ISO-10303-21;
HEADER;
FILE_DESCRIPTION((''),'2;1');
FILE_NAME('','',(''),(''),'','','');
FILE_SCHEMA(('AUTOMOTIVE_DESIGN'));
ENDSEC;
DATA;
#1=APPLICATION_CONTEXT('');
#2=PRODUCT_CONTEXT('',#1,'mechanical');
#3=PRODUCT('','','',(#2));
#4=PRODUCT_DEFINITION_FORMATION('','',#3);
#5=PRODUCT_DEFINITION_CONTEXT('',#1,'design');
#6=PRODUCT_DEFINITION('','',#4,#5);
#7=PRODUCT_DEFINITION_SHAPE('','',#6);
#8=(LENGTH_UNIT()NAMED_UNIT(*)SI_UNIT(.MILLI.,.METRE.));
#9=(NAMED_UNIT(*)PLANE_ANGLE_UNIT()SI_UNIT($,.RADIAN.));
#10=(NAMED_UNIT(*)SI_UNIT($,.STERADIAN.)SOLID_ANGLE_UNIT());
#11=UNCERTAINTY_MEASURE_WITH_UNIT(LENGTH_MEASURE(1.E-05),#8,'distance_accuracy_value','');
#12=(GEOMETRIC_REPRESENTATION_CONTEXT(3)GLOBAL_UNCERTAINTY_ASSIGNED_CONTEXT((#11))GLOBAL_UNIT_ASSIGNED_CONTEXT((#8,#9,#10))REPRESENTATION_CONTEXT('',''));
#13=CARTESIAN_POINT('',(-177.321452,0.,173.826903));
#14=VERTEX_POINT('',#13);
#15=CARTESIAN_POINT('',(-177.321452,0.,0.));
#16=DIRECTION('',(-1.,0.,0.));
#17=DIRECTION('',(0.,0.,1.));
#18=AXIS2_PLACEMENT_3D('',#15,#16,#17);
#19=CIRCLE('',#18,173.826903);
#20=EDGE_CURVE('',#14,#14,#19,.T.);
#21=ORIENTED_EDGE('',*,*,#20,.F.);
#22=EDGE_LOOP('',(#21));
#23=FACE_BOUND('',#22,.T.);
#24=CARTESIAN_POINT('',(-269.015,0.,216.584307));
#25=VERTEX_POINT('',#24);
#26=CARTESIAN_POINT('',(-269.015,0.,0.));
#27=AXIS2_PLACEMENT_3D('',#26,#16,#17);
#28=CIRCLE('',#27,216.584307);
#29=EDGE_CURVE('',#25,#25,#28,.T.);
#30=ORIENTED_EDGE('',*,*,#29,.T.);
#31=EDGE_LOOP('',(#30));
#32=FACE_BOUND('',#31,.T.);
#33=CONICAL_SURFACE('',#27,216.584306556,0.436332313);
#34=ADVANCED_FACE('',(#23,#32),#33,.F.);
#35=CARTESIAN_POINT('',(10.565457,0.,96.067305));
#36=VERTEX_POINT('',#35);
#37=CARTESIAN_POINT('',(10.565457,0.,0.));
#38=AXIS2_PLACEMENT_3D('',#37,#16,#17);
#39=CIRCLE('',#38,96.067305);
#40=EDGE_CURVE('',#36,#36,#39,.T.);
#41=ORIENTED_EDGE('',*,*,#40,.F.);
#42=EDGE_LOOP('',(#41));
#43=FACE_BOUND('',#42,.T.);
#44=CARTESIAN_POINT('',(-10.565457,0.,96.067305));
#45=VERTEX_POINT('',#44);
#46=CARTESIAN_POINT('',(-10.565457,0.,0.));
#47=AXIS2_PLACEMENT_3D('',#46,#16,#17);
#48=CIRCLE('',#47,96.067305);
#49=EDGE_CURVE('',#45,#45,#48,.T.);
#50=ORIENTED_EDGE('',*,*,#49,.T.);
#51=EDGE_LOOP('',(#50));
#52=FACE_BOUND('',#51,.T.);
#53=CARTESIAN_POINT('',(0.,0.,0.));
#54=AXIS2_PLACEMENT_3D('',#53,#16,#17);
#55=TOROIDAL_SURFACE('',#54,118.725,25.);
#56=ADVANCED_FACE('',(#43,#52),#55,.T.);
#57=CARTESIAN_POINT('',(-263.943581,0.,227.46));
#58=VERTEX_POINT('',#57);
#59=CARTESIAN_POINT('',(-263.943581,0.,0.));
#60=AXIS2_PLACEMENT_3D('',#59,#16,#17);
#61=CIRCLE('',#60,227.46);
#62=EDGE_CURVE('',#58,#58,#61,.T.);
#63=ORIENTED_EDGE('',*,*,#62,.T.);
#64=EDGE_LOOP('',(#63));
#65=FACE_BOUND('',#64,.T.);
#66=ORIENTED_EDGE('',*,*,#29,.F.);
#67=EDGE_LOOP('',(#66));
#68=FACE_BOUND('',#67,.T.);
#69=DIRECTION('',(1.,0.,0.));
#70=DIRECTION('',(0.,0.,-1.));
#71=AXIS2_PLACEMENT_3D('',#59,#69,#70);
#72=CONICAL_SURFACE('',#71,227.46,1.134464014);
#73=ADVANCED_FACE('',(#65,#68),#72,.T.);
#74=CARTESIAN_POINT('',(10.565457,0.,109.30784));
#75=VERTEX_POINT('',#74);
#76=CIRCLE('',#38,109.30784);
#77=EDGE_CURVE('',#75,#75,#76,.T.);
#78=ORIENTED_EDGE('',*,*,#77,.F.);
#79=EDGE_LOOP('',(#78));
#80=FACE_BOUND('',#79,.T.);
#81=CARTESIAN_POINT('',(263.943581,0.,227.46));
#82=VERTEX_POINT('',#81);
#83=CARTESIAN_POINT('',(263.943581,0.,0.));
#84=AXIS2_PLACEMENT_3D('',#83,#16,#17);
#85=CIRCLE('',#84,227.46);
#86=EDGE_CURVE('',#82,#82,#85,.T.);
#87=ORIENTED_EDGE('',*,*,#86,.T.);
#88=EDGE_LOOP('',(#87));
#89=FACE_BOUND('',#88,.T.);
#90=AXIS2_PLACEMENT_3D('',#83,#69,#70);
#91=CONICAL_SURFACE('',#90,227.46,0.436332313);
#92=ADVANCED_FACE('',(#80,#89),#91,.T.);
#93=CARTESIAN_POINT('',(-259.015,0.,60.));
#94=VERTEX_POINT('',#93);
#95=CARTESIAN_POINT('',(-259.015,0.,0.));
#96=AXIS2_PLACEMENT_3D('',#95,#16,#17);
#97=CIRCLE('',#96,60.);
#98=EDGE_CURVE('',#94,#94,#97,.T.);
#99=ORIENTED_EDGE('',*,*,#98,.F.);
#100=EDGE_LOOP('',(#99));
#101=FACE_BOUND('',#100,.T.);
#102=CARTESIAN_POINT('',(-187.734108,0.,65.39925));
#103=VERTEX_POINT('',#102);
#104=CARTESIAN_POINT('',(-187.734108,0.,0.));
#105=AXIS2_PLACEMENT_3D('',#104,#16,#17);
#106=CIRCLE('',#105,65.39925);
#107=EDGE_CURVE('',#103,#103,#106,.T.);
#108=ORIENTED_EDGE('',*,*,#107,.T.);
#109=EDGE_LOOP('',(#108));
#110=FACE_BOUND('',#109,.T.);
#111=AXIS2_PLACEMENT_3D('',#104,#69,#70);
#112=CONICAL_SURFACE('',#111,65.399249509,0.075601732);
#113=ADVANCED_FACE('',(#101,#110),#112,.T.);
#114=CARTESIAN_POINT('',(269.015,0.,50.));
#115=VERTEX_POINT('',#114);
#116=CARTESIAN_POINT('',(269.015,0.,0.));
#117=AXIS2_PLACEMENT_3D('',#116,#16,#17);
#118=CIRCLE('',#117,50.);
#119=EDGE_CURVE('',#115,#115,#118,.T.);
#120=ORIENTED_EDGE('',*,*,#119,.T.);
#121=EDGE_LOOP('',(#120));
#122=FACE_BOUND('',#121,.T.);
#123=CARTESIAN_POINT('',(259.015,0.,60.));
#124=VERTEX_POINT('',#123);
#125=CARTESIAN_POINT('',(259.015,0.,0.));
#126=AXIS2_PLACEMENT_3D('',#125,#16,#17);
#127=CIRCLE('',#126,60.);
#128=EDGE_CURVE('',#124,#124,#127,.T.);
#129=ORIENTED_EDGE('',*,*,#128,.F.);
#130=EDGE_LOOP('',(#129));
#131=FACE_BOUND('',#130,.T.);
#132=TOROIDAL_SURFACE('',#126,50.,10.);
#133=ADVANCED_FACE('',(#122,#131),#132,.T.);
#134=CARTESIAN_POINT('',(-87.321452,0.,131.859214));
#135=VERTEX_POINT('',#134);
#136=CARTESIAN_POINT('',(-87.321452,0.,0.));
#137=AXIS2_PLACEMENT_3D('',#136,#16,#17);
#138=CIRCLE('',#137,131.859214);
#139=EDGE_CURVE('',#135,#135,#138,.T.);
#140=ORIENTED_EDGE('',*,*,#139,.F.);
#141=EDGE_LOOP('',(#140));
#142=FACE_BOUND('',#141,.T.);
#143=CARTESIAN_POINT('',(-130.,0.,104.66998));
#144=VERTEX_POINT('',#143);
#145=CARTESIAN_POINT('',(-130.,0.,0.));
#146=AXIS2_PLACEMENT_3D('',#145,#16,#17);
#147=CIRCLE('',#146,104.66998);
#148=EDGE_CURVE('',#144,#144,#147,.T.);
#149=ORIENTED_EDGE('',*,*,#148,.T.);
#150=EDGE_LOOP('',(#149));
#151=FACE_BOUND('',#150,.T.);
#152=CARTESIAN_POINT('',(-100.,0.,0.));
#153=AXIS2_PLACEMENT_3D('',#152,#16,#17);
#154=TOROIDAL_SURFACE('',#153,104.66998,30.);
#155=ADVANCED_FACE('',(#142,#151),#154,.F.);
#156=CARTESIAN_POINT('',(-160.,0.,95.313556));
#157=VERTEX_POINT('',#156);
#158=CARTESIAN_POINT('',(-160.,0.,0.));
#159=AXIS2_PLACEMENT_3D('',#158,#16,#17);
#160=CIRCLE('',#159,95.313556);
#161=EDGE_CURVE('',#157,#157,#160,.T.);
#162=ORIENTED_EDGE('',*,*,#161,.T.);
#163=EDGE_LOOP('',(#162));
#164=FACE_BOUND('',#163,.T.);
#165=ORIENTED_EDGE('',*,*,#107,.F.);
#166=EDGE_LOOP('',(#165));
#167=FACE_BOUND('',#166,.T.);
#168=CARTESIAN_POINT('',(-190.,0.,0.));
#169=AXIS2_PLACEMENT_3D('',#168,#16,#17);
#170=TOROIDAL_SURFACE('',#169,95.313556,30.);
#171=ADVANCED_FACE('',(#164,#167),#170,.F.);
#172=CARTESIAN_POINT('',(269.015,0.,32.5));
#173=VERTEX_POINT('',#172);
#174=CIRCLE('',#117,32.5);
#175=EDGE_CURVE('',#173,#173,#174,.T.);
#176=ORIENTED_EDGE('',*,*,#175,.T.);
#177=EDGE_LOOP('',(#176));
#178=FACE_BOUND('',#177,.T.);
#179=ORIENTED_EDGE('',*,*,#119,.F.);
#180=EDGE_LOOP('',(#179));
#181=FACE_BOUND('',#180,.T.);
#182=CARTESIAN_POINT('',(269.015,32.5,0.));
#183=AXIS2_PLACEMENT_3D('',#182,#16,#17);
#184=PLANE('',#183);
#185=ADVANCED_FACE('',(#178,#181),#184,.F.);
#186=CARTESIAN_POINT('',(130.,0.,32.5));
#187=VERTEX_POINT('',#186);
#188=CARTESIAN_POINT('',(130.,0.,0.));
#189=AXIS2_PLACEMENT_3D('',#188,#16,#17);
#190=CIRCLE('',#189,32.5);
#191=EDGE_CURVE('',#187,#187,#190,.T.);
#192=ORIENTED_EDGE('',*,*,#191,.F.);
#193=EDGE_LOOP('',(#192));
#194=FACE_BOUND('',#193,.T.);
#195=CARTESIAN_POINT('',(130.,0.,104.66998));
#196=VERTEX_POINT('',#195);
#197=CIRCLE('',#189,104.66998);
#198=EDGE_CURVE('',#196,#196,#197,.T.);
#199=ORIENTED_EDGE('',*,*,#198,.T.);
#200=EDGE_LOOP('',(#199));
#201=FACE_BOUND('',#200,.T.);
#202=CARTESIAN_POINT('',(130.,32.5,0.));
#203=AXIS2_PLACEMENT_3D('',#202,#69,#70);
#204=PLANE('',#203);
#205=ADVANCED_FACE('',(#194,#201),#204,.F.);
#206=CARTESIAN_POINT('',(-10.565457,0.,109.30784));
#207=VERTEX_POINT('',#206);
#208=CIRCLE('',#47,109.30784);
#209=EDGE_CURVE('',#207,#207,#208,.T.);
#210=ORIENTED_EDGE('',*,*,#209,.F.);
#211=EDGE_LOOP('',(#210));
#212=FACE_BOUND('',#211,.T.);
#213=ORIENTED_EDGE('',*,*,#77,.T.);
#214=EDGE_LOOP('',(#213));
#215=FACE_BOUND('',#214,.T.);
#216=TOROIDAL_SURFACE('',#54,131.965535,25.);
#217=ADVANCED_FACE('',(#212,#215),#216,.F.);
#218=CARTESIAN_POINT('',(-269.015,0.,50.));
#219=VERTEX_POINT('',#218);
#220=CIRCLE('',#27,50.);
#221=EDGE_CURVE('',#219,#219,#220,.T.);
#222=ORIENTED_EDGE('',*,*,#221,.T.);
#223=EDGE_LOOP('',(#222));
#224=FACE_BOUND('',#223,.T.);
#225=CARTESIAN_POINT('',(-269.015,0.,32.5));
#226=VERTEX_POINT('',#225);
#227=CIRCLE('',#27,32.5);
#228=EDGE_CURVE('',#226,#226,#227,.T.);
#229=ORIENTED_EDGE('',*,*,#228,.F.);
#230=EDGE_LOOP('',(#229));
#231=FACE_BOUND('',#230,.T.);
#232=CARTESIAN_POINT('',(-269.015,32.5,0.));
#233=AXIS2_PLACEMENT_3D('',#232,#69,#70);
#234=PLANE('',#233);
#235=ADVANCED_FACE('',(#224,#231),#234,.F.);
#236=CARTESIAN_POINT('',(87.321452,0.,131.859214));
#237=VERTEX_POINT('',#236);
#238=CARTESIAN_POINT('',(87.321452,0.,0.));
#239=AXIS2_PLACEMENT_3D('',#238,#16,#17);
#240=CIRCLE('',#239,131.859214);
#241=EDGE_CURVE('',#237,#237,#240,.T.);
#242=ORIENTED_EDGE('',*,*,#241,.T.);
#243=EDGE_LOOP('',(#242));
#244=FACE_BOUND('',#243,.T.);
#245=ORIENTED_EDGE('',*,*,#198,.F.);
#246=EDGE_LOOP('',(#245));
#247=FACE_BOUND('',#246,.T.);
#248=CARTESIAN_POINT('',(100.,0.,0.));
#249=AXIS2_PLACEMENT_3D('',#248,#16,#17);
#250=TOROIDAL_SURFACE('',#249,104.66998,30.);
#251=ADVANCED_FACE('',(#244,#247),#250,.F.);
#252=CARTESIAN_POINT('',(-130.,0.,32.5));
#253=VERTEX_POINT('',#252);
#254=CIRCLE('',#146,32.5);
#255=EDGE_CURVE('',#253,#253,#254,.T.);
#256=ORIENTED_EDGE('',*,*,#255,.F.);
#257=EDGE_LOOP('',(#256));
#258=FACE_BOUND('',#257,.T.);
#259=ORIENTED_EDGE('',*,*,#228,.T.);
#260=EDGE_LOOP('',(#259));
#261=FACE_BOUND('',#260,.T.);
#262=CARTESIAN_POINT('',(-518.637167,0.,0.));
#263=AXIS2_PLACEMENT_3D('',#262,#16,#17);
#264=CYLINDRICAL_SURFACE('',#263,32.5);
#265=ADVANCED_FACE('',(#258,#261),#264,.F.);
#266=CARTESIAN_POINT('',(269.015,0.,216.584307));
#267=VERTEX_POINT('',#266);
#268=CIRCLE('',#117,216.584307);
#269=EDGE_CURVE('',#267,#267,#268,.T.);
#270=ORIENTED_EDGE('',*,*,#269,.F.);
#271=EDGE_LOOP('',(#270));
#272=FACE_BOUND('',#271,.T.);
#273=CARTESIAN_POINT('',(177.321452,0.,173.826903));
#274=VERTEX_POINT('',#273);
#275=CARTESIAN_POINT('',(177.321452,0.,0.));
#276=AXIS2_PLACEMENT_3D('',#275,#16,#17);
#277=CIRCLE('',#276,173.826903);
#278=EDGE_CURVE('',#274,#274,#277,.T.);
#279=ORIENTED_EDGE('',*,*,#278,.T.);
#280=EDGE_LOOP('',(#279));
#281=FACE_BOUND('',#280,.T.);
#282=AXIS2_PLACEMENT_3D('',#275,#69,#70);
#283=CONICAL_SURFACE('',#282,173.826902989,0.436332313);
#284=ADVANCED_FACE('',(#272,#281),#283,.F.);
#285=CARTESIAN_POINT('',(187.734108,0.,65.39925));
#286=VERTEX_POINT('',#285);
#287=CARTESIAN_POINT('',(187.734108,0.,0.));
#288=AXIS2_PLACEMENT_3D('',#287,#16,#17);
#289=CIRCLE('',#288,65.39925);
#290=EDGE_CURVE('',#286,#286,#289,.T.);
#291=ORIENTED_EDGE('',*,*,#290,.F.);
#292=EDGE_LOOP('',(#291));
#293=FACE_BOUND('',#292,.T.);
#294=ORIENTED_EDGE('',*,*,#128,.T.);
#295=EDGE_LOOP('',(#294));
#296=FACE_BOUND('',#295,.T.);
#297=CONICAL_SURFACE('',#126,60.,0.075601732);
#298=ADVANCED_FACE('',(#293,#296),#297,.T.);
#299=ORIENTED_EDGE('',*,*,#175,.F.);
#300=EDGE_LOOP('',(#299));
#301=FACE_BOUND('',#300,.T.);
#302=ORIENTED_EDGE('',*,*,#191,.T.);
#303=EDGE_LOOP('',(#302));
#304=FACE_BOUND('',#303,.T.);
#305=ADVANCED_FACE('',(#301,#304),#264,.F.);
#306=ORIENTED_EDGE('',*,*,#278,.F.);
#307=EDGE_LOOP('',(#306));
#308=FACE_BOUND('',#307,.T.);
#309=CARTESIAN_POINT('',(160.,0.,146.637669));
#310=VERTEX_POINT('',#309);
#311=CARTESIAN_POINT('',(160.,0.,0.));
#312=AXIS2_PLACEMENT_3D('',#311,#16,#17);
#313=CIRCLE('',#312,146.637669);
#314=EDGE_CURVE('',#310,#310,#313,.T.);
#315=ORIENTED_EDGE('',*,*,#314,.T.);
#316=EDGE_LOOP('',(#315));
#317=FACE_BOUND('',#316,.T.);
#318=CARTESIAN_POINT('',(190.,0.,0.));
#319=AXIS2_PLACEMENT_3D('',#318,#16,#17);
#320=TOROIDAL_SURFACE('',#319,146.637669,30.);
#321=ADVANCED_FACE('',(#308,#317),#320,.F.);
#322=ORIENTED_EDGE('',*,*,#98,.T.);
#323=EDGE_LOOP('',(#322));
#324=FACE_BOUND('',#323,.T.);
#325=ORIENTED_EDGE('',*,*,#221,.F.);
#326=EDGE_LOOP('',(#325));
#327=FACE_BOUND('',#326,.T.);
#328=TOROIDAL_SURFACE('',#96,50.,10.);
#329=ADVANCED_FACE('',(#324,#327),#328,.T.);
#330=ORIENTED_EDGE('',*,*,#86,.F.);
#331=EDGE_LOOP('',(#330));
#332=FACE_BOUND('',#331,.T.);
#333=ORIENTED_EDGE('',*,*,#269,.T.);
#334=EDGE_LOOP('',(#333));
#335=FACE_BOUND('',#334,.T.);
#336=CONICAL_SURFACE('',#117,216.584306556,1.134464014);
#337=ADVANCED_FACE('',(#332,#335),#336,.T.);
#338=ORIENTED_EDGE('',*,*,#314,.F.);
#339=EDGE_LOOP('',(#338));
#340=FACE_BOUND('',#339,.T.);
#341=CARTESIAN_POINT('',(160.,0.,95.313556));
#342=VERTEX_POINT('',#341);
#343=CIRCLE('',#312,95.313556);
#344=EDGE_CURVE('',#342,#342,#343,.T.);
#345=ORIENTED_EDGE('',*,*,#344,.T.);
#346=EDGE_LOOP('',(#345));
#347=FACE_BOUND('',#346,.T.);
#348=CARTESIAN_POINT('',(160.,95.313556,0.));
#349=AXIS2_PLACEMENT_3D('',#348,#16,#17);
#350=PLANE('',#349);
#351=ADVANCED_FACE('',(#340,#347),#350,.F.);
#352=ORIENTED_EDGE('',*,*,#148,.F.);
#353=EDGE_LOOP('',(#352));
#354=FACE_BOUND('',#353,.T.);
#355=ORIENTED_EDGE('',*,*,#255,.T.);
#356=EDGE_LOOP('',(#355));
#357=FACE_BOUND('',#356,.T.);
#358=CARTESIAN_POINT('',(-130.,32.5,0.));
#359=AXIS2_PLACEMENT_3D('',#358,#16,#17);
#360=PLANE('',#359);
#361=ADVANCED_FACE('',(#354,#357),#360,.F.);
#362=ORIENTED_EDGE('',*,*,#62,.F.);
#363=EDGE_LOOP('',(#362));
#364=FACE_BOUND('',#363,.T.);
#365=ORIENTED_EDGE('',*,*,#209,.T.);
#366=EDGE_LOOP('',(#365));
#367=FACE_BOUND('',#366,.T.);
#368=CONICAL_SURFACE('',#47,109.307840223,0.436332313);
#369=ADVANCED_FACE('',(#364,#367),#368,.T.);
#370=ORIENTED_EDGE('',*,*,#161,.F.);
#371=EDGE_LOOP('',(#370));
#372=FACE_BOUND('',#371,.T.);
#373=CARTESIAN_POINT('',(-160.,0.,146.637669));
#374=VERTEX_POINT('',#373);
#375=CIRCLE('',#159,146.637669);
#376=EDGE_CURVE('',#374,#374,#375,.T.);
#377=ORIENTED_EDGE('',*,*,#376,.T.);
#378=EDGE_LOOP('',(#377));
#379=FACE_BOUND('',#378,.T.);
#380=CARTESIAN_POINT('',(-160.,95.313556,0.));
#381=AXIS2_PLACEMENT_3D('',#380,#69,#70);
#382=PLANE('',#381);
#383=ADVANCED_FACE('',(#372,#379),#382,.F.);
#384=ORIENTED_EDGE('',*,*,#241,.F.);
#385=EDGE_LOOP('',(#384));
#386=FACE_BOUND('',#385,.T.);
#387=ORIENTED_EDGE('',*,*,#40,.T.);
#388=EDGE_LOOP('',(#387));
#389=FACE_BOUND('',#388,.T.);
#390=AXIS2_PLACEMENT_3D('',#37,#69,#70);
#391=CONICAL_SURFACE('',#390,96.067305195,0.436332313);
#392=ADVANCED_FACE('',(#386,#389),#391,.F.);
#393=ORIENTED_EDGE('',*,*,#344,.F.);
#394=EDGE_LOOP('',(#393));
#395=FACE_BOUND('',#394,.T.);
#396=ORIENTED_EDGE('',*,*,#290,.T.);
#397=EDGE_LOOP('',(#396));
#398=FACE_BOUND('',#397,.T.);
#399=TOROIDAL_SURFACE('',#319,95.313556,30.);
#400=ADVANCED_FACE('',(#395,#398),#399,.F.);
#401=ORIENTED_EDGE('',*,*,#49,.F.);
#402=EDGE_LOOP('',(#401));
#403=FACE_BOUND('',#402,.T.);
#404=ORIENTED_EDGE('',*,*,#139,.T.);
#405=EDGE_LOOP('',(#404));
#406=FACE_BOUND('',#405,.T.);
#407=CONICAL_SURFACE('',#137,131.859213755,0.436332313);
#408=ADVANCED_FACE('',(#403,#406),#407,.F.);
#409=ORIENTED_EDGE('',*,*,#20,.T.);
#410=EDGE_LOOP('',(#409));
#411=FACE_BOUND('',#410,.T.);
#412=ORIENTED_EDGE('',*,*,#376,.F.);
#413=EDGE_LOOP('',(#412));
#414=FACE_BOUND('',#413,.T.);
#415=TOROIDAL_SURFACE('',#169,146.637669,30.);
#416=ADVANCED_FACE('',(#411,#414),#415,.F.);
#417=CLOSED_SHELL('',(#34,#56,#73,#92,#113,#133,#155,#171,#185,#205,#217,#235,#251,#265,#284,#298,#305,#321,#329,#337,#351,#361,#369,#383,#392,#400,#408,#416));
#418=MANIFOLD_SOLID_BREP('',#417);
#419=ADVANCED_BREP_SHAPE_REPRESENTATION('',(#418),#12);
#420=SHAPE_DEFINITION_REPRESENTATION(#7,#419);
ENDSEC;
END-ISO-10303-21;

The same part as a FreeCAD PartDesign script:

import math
import FreeCAD as App
import Part
import Sketcher
from FreeCAD import Vector
Q = App.Units.Quantity

doc = App.newDocument("Part")
body = doc.addObject("PartDesign::Body", "Body")

# Sketch on XY plane
sketch1 = body.newObject("Sketcher::SketchObject", "Sketch")
sketch1.AttachmentSupport = (doc.getObject("XY_Plane"), [""])
sketch1.MapMode = "FlatFace"
sketch1.addGeometry([
    Part.LineSegment(Vector(130, 32, 0), Vector(269, 32, 0)),  # 0
    Part.LineSegment(Vector(269, 32, 0), Vector(269, 50, 0)),  # 1
    Part.ArcOfCircle(Part.Circle(Vector(259, 50, 0), Vector(0, 0, 1), 10), math.radians(0), math.radians(90)),  # 2
    Part.LineSegment(Vector(259, 60, 0), Vector(188, 65, 0)),  # 3
    Part.ArcOfCircle(Part.Circle(Vector(190, 95, 0), Vector(0, 0, 1), 30), math.radians(180), math.radians(266)),  # 4
    Part.LineSegment(Vector(160, 95, 0), Vector(160, 147, 0)),  # 5
    Part.ArcOfCircle(Part.Circle(Vector(190, 147, 0), Vector(0, 0, 1), 30), math.radians(115), math.radians(180)),  # 6
    Part.LineSegment(Vector(177, 174, 0), Vector(269, 217, 0)),  # 7
    Part.LineSegment(Vector(269, 217, 0), Vector(264, 227, 0)),  # 8
    Part.LineSegment(Vector(264, 227, 0), Vector(11, 109, 0)),  # 9
    Part.ArcOfCircle(Part.Circle(Vector(0, 132, 0), Vector(0, 0, 1), 25), math.radians(-115), math.radians(-65)),  # 10
    Part.LineSegment(Vector(-11, 109, 0), Vector(-264, 227, 0)),  # 11
    Part.LineSegment(Vector(-264, 227, 0), Vector(-269, 217, 0)),  # 12
    Part.LineSegment(Vector(-269, 217, 0), Vector(-177, 174, 0)),  # 13
    Part.ArcOfCircle(Part.Circle(Vector(-190, 147, 0), Vector(0, 0, 1), 30), math.radians(0), math.radians(65)),  # 14
    Part.LineSegment(Vector(-160, 147, 0), Vector(-160, 95, 0)),  # 15
    Part.ArcOfCircle(Part.Circle(Vector(-190, 95, 0), Vector(0, 0, 1), 30), math.radians(-86), math.radians(0)),  # 16
    Part.LineSegment(Vector(-188, 65, 0), Vector(-259, 60, 0)),  # 17
    Part.ArcOfCircle(Part.Circle(Vector(-259, 50, 0), Vector(0, 0, 1), 10), math.radians(90), math.radians(180)),  # 18
    Part.LineSegment(Vector(-269, 50, 0), Vector(-269, 32, 0)),  # 19
    Part.LineSegment(Vector(-269, 32, 0), Vector(-130, 32, 0)),  # 20
    Part.LineSegment(Vector(-130, 32, 0), Vector(-130, 105, 0)),  # 21
    Part.ArcOfCircle(Part.Circle(Vector(-100, 105, 0), Vector(0, 0, 1), 30), math.radians(65), math.radians(180)),  # 22
    Part.LineSegment(Vector(-87, 132, 0), Vector(-11, 96, 0)),  # 23
    Part.ArcOfCircle(Part.Circle(Vector(0, 119, 0), Vector(0, 0, 1), 25), math.radians(-115), math.radians(-65)),  # 24
    Part.LineSegment(Vector(11, 96, 0), Vector(87, 132, 0)),  # 25
    Part.ArcOfCircle(Part.Circle(Vector(100, 105, 0), Vector(0, 0, 1), 30), math.radians(0), math.radians(115)),  # 26
    Part.LineSegment(Vector(130, 105, 0), Vector(130, 32, 0)),  # 27
], False)
sketch1.addConstraint([
    Sketcher.Constraint("Coincident", 0, 2, 1, 1),
    Sketcher.Constraint("Tangent", 1, 2, 2, 1),
    Sketcher.Constraint("Coincident", 2, 2, 3, 1),
    Sketcher.Constraint("Tangent", 3, 2, 4, 2),
    Sketcher.Constraint("Tangent", 4, 1, 5, 1),
    Sketcher.Constraint("Tangent", 5, 2, 6, 2),
    Sketcher.Constraint("Tangent", 6, 1, 7, 1),
    Sketcher.Constraint("Coincident", 7, 2, 8, 1),
    Sketcher.Constraint("Coincident", 8, 2, 9, 1),
    Sketcher.Constraint("Tangent", 9, 2, 10, 2),
    Sketcher.Constraint("Tangent", 10, 1, 11, 1),
    Sketcher.Constraint("Coincident", 11, 2, 12, 1),
    Sketcher.Constraint("Coincident", 12, 2, 13, 1),
    Sketcher.Constraint("Tangent", 13, 2, 14, 2),
    Sketcher.Constraint("Tangent", 14, 1, 15, 1),
    Sketcher.Constraint("Tangent", 15, 2, 16, 2),
    Sketcher.Constraint("Tangent", 16, 1, 17, 1),
    Sketcher.Constraint("Coincident", 17, 2, 18, 1),
    Sketcher.Constraint("Tangent", 18, 2, 19, 1),
    Sketcher.Constraint("Coincident", 19, 2, 20, 1),
    Sketcher.Constraint("Coincident", 20, 2, 21, 1),
    Sketcher.Constraint("Tangent", 21, 2, 22, 2),
    Sketcher.Constraint("Tangent", 22, 1, 23, 1),
    Sketcher.Constraint("Tangent", 23, 2, 24, 1),
    Sketcher.Constraint("Tangent", 24, 2, 25, 1),
    Sketcher.Constraint("Tangent", 25, 2, 26, 2),
    Sketcher.Constraint("Tangent", 26, 1, 27, 1),
    Sketcher.Constraint("Coincident", 27, 2, 0, 1),
    Sketcher.Constraint("Horizontal", 0),
    Sketcher.Constraint("Vertical", 1),
    Sketcher.Constraint("Vertical", 5),
    Sketcher.Constraint("Vertical", 15),
    Sketcher.Constraint("Vertical", 19),
    Sketcher.Constraint("Horizontal", 20),
    Sketcher.Constraint("Vertical", 21),
    Sketcher.Constraint("Vertical", 27),
    Sketcher.Constraint("Equal", 4, 6),
    Sketcher.Constraint("Equal", 6, 14),
    Sketcher.Constraint("Equal", 14, 16),
    Sketcher.Constraint("Equal", 2, 18),
    Sketcher.Constraint("Equal", 16, 22),
    Sketcher.Constraint("Equal", 10, 24),
    Sketcher.Constraint("Equal", 22, 26),
    Sketcher.Constraint("Symmetric", 6, 3, 14, 3, -2),
    Sketcher.Constraint("Symmetric", 2, 3, 18, 3, -2),
    Sketcher.Constraint("Symmetric", 22, 3, 26, 3, -2),
    Sketcher.Constraint("Symmetric", 9, 2, 10, 1, -2),
    Sketcher.Constraint("Symmetric", 7, 2, 12, 2, -2),
    Sketcher.Constraint("Symmetric", 3, 2, 16, 1, -2),
    Sketcher.Constraint("PointOnObject", 24, 3, -2),
    Sketcher.Constraint("Perpendicular", 7, 8),
    Sketcher.Constraint("Perpendicular", 8, 9),
    Sketcher.Constraint("Perpendicular", 11, 12),
    Sketcher.Constraint("Parallel", 13, 23),
    Sketcher.Constraint("Horizontal", 0, 2, 19, 2),
    Sketcher.Constraint("Vertical", 1, 2, 7, 2),
    Sketcher.Constraint("Vertical", 18, 3, 17, 2),
    Sketcher.Constraint("Radius", 2, Q("10 mm")),
    Sketcher.Constraint("Radius", 4, Q("30 mm")),
    Sketcher.Constraint("Radius", 10, Q("25 mm")),
    Sketcher.Constraint("Angle", 7, Q("25 deg")),
    Sketcher.Constraint("Distance", 8, Q("12 mm")),
    Sketcher.Constraint("DistanceY", 1, 1, 1, 2, Q("17.5 mm")),
    Sketcher.Constraint("DistanceY", -1, 1, 2, 3, Q("50 mm")),
    Sketcher.Constraint("DistanceX", -1, 1, 4, 3, Q("190 mm")),
    Sketcher.Constraint("DistanceX", 22, 3, -1, 1, Q("100 mm")),
    Sketcher.Constraint("DistanceX", 0, 1, 0, 2, Q("139.015 mm")),
    Sketcher.Constraint("DistanceY", -1, 1, 8, 2, Q("227.46 mm")),
    Sketcher.Constraint("DistanceY", -1, 1, 24, 3, Q("118.725 mm")),
    Sketcher.Constraint("DistanceY", 5, 1, 5, 2, Q("51.324113 mm")),
])
revolution = body.newObject("PartDesign::Revolution", "Revolution")
revolution.Profile = sketch1
revolution.ReferenceAxis = (sketch1, ["H_Axis"])
revolution.Angle = 360

doc.recompute()
